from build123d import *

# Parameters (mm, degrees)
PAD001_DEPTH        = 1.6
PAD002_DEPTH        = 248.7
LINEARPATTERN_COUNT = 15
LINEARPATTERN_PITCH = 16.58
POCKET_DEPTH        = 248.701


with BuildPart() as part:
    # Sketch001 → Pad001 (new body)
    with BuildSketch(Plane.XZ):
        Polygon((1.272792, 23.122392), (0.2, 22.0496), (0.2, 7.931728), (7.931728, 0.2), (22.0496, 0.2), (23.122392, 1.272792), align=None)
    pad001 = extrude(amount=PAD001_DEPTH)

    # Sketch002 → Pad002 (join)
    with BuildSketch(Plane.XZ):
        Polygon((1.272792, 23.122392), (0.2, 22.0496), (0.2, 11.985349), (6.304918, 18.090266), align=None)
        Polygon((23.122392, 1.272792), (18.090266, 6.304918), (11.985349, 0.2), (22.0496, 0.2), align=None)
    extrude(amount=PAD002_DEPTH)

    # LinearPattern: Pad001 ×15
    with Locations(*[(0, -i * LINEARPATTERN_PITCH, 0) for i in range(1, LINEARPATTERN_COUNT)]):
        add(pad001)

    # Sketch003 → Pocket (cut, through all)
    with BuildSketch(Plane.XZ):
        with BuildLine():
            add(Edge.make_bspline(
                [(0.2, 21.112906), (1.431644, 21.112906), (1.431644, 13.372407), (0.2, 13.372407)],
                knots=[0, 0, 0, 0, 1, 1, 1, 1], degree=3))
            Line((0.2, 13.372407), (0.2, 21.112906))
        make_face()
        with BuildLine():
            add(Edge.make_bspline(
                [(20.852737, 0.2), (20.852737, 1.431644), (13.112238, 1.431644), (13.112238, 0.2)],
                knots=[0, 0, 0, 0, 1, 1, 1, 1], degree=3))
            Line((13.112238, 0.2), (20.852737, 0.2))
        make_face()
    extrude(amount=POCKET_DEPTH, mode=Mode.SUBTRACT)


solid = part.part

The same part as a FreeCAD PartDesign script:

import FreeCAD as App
import Part
import Sketcher


def add_polygon(sketch, points):
    """Adds a closed chain of lines whose ends are joined by coincident constraints."""
    first, n = sketch.GeometryCount, len(points)
    for a, b in zip(points, points[1:] + points[:1]):
        sketch.addGeometry(Part.LineSegment(App.Vector(*a, 0), App.Vector(*b, 0)), False)
    for i in range(n):
        sketch.addConstraint(Sketcher.Constraint("Coincident", first + i, 2, first + (i + 1) % n, 1))

doc = App.newDocument("Part")
params = doc.addObject("Spreadsheet::Sheet", "Params")
for row, (alias, value) in enumerate([
    ("sketch1_length", "30.900001 mm"),
    ("pad1_length", "1.6 mm"),
    ("pad2_length", "248.7 mm"),
    ("linearpattern_pitch", "16.58 mm"),
], start=1):
    params.set(f"A{row}", alias)
    params.set(f"B{row}", "=" + value)
    params.setAlias(f"B{row}", alias)

body = doc.addObject("PartDesign::Body", "Body")

sketch1 = body.newObject("Sketcher::SketchObject", "Sketch")
sketch1.AttachmentSupport = (doc.getObject("XZ_Plane"), [""])
sketch1.MapMode = "FlatFace"
add_polygon(sketch1, [(1.3, 23.1), (0.2, 22), (0.2, 7.9), (7.9, 0.2), (22, 0.2), (23.1, 1.3)])
sketch1.addConstraint(Sketcher.Constraint("Vertical", 1))
sketch1.addConstraint(Sketcher.Constraint("Horizontal", 3))
sketch1.addConstraint(Sketcher.Constraint("Perpendicular", 0, 2))
sketch1.addConstraint(Sketcher.Constraint("Perpendicular", 2, 4))
sketch1.addConstraint(Sketcher.Constraint("Perpendicular", 4, 5))
sketch1.addConstraint(Sketcher.Constraint("Equal", 3, 1))
sketch1.addConstraint(Sketcher.Constraint("Equal", 0, 4))
sketch1.addConstraint(Sketcher.Constraint("Distance", 5, 30.900001))
sketch1.addConstraint(Sketcher.Constraint("DistanceX", -1, 1, 0, 2, 0.2))
sketch1.addConstraint(Sketcher.Constraint("DistanceY", -1, 1, 2, 2, 0.2))
sketch1.addConstraint(Sketcher.Constraint("DistanceX", 3, 1, 3, 2, 14.117872))
sketch1.addConstraint(Sketcher.Constraint("DistanceY", -1, 1, 4, 2, 1.272792))
sketch1.setExpression("Constraints[13]", "Params.sketch1_length")
pad1 = body.newObject("PartDesign::Pad", "Pad")
pad1.Profile = sketch1
pad1.setExpression("Length", "Params.pad1_length")

sketch2 = body.newObject("Sketcher::SketchObject", "Sketch001")
sketch2.AttachmentSupport = (doc.getObject("XZ_Plane"), [""])
sketch2.MapMode = "FlatFace"
add_polygon(sketch2, [(1.3, 23.1), (0.2, 22), (0.2, 12), (6.3, 18.1)])
add_polygon(sketch2, [(23.1, 1.3), (18.1, 6.3), (12, 0.2), (22, 0.2)])
sketch2.addConstraint(Sketcher.Constraint("Vertical", 1))
sketch2.addConstraint(Sketcher.Constraint("Horizontal", 6))
sketch2.addConstraint(Sketcher.Constraint("Parallel", 0, 2))
sketch2.addConstraint(Sketcher.Constraint("Perpendicular", 2, 3))
sketch2.addConstraint(Sketcher.Constraint("Parallel", 3, 4))
sketch2.addConstraint(Sketcher.Constraint("Perpendicular", 4, 5))
sketch2.addConstraint(Sketcher.Constraint("Parallel", 5, 7))
sketch2.addConstraint(Sketcher.Constraint("Equal", 6, 1))
sketch2.addConstraint(Sketcher.Constraint("Equal", 3, 4))
sketch2.addConstraint(Sketcher.Constraint("Equal", 2, 5))
sketch2.addConstraint(Sketcher.Constraint("DistanceX", -1, 1, 0, 2, 0.2))
sketch2.addConstraint(Sketcher.Constraint("DistanceY", -1, 1, 5, 2, 0.2))
sketch2.addConstraint(Sketcher.Constraint("Distance", 3, 7.116501))
sketch2.addConstraint(Sketcher.Constraint("DistanceY", -1, 1, 0, 2, 22.0496))
sketch2.addConstraint(Sketcher.Constraint("DistanceX", -1, 1, 6, 2, 22.0496))
sketch2.addConstraint(Sketcher.Constraint("DistanceX", -1, 1, 3, 2, 1.272792))
pad2 = body.newObject("PartDesign::Pad", "Pad001")
pad2.Profile = sketch2
pad2.setExpression("Length", "Params.pad2_length")
doc.recompute()

linearpattern = body.newObject("PartDesign::LinearPattern", "LinearPattern")
linearpattern.Originals = [pad1]
linearpattern.Direction = (doc.getObject("Y_Axis"), [""])
linearpattern.Mode = "offset"
linearpattern.setExpression("Offset", "Params.linearpattern_pitch")
linearpattern.Occurrences = 15
linearpattern.Reversed = True
body.Tip = linearpattern

sketch3 = body.newObject("Sketcher::SketchObject", "Sketch002")
sketch3.AttachmentSupport = (doc.getObject("XZ_Plane"), [""])
sketch3.MapMode = "FlatFace"
sketch3.addGeometry(Part.BSplineCurve([App.Vector(0.2, 21.112906, 0), App.Vector(1.431644, 21.112906, 0), App.Vector(1.431644, 13.372407, 0), App.Vector(0.2, 13.372407, 0)], [4, 4], [0, 1], False, 3, [1, 1, 1, 1], False), False)
sketch3.addGeometry(Part.LineSegment(App.Vector(0.2, 21.112906, 0), App.Vector(0.2, 13.372407, 0)), False)
sketch3.addGeometry(Part.BSplineCurve([App.Vector(20.852737, 0.2, 0), App.Vector(20.852737, 1.431644, 0), App.Vector(13.112238, 1.431644, 0), App.Vector(13.112238, 0.2, 0)], [4, 4], [0, 1], False, 3, [1, 1, 1, 1], False), False)
sketch3.addGeometry(Part.LineSegment(App.Vector(13.112238, 0.2, 0), App.Vector(20.852737, 0.2, 0)), False)
sketch3.addConstraint(Sketcher.Constraint("Block", 0))
sketch3.addConstraint(Sketcher.Constraint("Block", 2))
sketch3.addConstraint(Sketcher.Constraint("Coincident", 0, 1, 1, 1))
sketch3.addConstraint(Sketcher.Constraint("Coincident", 1, 2, 0, 2))
sketch3.addConstraint(Sketcher.Constraint("Coincident", 2, 1, 3, 2))
sketch3.addConstraint(Sketcher.Constraint("Coincident", 3, 1, 2, 2))
pocket1 = body.newObject("PartDesign::Pocket", "Pocket")
pocket1.Profile = sketch3
pocket1.Type = "ThroughAll"
pocket1.Reversed = True

doc.recompute()
